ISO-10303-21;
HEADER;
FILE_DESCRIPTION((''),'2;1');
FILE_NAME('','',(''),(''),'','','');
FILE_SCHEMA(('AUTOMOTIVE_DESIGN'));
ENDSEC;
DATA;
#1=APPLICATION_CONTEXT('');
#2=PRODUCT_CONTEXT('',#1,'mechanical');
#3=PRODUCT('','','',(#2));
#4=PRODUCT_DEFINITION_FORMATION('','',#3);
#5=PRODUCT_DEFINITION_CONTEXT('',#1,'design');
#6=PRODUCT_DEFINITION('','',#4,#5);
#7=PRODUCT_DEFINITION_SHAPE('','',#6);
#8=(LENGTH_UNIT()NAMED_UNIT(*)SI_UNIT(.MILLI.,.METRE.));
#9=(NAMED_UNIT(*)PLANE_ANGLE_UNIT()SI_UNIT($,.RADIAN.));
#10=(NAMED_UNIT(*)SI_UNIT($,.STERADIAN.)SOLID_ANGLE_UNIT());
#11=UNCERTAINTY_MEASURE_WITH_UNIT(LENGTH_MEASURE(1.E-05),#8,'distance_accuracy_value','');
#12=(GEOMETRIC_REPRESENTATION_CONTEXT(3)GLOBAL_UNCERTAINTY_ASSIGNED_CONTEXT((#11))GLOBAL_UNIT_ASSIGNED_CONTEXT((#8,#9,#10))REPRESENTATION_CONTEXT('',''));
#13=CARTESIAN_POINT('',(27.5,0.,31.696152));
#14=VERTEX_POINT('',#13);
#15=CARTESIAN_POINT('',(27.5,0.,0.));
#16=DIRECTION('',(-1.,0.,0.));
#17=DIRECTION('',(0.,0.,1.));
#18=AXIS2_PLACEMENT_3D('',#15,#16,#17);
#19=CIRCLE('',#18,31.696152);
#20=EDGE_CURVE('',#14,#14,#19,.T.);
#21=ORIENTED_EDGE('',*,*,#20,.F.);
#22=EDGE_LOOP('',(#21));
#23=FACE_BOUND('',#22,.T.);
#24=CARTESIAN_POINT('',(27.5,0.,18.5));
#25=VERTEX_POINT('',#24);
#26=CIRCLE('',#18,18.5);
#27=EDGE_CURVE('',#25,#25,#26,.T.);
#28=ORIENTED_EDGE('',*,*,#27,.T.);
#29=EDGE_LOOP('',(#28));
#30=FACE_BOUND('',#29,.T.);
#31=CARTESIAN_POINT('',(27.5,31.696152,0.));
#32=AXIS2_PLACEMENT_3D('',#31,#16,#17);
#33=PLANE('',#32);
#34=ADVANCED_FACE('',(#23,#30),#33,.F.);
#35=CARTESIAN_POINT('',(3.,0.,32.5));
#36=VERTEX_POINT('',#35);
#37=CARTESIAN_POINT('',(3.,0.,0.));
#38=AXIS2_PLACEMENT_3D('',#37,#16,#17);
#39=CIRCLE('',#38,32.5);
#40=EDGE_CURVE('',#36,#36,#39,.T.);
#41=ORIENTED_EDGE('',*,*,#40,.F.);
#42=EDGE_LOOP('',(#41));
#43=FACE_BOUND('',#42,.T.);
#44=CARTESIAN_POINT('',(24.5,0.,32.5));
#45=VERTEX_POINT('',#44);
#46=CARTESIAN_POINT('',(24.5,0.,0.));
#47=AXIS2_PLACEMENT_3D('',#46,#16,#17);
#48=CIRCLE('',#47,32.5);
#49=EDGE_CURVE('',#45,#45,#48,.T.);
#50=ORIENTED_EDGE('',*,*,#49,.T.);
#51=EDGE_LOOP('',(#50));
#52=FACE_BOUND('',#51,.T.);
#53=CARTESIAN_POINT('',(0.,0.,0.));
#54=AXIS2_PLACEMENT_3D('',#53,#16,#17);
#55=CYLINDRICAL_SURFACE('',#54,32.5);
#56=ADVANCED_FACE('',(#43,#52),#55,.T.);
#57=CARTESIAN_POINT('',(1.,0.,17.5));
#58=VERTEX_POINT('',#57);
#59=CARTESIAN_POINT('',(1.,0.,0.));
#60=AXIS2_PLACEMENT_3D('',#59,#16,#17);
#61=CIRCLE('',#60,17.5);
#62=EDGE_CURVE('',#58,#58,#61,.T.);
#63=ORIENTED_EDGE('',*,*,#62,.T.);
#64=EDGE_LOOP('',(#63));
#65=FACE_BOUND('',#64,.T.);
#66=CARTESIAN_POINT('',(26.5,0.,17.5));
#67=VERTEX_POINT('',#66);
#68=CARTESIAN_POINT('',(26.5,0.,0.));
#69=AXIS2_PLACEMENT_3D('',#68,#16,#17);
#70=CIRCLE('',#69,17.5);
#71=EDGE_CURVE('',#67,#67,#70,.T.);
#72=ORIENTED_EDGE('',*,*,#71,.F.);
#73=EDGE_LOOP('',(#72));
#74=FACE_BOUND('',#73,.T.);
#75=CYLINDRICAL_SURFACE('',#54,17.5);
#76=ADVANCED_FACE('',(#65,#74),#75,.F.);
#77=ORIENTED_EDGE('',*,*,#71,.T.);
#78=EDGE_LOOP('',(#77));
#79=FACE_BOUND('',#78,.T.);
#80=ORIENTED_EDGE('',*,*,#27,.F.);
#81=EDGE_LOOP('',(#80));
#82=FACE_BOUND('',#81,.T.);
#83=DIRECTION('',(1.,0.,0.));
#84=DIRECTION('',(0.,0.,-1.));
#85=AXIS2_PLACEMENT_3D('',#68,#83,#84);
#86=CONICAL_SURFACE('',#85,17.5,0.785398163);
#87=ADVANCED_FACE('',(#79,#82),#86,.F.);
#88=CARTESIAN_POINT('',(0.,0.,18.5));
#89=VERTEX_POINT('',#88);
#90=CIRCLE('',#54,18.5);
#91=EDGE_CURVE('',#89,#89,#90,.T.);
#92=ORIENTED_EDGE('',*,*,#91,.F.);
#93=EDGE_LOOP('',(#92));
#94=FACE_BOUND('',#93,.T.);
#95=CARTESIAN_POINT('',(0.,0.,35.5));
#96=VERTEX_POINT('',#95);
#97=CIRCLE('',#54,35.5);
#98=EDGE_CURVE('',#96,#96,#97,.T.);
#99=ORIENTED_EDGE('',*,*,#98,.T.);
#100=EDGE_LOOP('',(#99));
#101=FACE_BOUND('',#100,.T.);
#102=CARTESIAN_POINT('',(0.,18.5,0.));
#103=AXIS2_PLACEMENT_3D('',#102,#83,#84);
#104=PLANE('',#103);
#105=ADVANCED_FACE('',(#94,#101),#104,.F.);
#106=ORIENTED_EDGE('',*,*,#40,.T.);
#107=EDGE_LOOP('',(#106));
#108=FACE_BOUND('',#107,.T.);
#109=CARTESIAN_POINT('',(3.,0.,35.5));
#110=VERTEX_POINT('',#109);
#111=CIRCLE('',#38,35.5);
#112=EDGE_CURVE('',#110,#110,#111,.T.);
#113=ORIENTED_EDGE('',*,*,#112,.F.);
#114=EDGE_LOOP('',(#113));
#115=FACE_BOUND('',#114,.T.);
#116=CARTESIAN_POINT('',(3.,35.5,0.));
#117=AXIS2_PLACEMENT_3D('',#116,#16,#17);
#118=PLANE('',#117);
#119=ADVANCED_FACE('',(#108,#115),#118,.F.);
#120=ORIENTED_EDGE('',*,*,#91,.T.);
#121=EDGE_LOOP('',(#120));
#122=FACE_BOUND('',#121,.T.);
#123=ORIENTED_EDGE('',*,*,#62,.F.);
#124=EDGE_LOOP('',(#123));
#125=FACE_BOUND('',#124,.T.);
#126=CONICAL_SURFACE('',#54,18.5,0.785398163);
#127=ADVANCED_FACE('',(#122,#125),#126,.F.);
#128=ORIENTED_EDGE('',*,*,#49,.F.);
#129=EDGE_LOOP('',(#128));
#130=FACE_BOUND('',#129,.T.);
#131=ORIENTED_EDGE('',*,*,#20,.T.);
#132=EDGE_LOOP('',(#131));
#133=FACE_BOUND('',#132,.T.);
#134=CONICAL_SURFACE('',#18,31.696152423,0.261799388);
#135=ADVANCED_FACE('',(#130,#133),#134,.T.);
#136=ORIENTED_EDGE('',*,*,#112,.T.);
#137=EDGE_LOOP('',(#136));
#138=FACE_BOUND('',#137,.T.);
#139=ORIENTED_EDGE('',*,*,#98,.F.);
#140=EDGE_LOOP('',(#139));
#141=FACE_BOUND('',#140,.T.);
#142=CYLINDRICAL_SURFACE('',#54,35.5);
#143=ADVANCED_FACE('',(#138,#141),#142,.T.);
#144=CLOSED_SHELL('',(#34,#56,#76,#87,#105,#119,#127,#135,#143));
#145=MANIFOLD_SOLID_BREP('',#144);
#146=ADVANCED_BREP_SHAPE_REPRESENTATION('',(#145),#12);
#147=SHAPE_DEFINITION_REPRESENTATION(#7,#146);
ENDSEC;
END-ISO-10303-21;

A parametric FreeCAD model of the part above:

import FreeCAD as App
import Part
import Sketcher
Q = App.Units.Quantity


def add_polygon(sketch, points):
    """Adds a closed chain of lines whose ends are joined by coincident constraints."""
    first, n = sketch.GeometryCount, len(points)
    for a, b in zip(points, points[1:] + points[:1]):
        sketch.addGeometry(Part.LineSegment(App.Vector(*a, 0), App.Vector(*b, 0)), False)
    for i in range(n):
        sketch.addConstraint(Sketcher.Constraint("Coincident", first + i, 2, first + (i + 1) % n, 1))

doc = App.newDocument("Part")
params = doc.addObject("Spreadsheet::Sheet", "Params")
for row, (alias, value) in enumerate([
    ("sketch1_width", "3 mm"),
    ("sketch1_height", "17 mm"),
    ("sketch1_width2", "25.5 mm"),
    ("sketch1_width3", "21.5 mm"),
    ("revolution_angle", "360 deg"),
], start=1):
    params.set(f"A{row}", alias)
    params.set(f"B{row}", "=" + value)
    params.setAlias(f"B{row}", alias)

body = doc.addObject("PartDesign::Body", "Body")

sketch1 = body.newObject("Sketcher::SketchObject", "Sketch")
sketch1.AttachmentSupport = (doc.getObject("XY_Plane"), [""])
sketch1.MapMode = "FlatFace"
add_polygon(sketch1, [(0, 35.5), (0, 18.5), (1, 17.5), (26.5, 17.5), (27.5, 18.5), (27.5, 31.7), (24.5, 32.5), (3, 32.5), (3, 35.5)])
sketch1.addConstraint(Sketcher.Constraint("Vertical", 0))
sketch1.addConstraint(Sketcher.Constraint("Horizontal", 2))
sketch1.addConstraint(Sketcher.Constraint("Vertical", 4))
sketch1.addConstraint(Sketcher.Constraint("Horizontal", 6))
sketch1.addConstraint(Sketcher.Constraint("Vertical", 7))
sketch1.addConstraint(Sketcher.Constraint("Horizontal", 8))
sketch1.addConstraint(Sketcher.Constraint("PointOnObject", 0, 2, -2))
sketch1.addConstraint(Sketcher.Constraint("Perpendicular", 1, 3))
sketch1.addConstraint(Sketcher.Constraint("Horizontal", 0, 2, 3, 2))
sketch1.addConstraint(Sketcher.Constraint("Equal", 8, 7))
sketch1.addConstraint(Sketcher.Constraint("Equal", 1, 3))
sketch1.addConstraint(Sketcher.Constraint("DistanceX", 8, 2, 8, 1, Q("3 mm")))
sketch1.addConstraint(Sketcher.Constraint("DistanceY", 0, 2, 0, 1, Q("17 mm")))
sketch1.addConstraint(Sketcher.Constraint("Angle", 5, Q("165 deg")))
sketch1.addConstraint(Sketcher.Constraint("DistanceX", 2, 1, 2, 2, Q("25.5 mm")))
sketch1.addConstraint(Sketcher.Constraint("DistanceX", 6, 2, 6, 1, Q("21.5 mm")))
sketch1.addConstraint(Sketcher.Constraint("DistanceX", -1, 1, 1, 2, Q("1 mm")))
sketch1.addConstraint(Sketcher.Constraint("DistanceY", -1, 1, 0, 2, Q("18.5 mm")))
sketch1.setExpression("Constraints[20]", "Params.sketch1_width")
sketch1.setExpression("Constraints[21]", "Params.sketch1_height")
sketch1.setExpression("Constraints[23]", "Params.sketch1_width2")
sketch1.setExpression("Constraints[24]", "Params.sketch1_width3")
revolution = body.newObject("PartDesign::Revolution", "Revolution")
revolution.Profile = sketch1
revolution.ReferenceAxis = (sketch1, ["H_Axis"])
revolution.setExpression("Angle", "Params.revolution_angle")

doc.recompute()
